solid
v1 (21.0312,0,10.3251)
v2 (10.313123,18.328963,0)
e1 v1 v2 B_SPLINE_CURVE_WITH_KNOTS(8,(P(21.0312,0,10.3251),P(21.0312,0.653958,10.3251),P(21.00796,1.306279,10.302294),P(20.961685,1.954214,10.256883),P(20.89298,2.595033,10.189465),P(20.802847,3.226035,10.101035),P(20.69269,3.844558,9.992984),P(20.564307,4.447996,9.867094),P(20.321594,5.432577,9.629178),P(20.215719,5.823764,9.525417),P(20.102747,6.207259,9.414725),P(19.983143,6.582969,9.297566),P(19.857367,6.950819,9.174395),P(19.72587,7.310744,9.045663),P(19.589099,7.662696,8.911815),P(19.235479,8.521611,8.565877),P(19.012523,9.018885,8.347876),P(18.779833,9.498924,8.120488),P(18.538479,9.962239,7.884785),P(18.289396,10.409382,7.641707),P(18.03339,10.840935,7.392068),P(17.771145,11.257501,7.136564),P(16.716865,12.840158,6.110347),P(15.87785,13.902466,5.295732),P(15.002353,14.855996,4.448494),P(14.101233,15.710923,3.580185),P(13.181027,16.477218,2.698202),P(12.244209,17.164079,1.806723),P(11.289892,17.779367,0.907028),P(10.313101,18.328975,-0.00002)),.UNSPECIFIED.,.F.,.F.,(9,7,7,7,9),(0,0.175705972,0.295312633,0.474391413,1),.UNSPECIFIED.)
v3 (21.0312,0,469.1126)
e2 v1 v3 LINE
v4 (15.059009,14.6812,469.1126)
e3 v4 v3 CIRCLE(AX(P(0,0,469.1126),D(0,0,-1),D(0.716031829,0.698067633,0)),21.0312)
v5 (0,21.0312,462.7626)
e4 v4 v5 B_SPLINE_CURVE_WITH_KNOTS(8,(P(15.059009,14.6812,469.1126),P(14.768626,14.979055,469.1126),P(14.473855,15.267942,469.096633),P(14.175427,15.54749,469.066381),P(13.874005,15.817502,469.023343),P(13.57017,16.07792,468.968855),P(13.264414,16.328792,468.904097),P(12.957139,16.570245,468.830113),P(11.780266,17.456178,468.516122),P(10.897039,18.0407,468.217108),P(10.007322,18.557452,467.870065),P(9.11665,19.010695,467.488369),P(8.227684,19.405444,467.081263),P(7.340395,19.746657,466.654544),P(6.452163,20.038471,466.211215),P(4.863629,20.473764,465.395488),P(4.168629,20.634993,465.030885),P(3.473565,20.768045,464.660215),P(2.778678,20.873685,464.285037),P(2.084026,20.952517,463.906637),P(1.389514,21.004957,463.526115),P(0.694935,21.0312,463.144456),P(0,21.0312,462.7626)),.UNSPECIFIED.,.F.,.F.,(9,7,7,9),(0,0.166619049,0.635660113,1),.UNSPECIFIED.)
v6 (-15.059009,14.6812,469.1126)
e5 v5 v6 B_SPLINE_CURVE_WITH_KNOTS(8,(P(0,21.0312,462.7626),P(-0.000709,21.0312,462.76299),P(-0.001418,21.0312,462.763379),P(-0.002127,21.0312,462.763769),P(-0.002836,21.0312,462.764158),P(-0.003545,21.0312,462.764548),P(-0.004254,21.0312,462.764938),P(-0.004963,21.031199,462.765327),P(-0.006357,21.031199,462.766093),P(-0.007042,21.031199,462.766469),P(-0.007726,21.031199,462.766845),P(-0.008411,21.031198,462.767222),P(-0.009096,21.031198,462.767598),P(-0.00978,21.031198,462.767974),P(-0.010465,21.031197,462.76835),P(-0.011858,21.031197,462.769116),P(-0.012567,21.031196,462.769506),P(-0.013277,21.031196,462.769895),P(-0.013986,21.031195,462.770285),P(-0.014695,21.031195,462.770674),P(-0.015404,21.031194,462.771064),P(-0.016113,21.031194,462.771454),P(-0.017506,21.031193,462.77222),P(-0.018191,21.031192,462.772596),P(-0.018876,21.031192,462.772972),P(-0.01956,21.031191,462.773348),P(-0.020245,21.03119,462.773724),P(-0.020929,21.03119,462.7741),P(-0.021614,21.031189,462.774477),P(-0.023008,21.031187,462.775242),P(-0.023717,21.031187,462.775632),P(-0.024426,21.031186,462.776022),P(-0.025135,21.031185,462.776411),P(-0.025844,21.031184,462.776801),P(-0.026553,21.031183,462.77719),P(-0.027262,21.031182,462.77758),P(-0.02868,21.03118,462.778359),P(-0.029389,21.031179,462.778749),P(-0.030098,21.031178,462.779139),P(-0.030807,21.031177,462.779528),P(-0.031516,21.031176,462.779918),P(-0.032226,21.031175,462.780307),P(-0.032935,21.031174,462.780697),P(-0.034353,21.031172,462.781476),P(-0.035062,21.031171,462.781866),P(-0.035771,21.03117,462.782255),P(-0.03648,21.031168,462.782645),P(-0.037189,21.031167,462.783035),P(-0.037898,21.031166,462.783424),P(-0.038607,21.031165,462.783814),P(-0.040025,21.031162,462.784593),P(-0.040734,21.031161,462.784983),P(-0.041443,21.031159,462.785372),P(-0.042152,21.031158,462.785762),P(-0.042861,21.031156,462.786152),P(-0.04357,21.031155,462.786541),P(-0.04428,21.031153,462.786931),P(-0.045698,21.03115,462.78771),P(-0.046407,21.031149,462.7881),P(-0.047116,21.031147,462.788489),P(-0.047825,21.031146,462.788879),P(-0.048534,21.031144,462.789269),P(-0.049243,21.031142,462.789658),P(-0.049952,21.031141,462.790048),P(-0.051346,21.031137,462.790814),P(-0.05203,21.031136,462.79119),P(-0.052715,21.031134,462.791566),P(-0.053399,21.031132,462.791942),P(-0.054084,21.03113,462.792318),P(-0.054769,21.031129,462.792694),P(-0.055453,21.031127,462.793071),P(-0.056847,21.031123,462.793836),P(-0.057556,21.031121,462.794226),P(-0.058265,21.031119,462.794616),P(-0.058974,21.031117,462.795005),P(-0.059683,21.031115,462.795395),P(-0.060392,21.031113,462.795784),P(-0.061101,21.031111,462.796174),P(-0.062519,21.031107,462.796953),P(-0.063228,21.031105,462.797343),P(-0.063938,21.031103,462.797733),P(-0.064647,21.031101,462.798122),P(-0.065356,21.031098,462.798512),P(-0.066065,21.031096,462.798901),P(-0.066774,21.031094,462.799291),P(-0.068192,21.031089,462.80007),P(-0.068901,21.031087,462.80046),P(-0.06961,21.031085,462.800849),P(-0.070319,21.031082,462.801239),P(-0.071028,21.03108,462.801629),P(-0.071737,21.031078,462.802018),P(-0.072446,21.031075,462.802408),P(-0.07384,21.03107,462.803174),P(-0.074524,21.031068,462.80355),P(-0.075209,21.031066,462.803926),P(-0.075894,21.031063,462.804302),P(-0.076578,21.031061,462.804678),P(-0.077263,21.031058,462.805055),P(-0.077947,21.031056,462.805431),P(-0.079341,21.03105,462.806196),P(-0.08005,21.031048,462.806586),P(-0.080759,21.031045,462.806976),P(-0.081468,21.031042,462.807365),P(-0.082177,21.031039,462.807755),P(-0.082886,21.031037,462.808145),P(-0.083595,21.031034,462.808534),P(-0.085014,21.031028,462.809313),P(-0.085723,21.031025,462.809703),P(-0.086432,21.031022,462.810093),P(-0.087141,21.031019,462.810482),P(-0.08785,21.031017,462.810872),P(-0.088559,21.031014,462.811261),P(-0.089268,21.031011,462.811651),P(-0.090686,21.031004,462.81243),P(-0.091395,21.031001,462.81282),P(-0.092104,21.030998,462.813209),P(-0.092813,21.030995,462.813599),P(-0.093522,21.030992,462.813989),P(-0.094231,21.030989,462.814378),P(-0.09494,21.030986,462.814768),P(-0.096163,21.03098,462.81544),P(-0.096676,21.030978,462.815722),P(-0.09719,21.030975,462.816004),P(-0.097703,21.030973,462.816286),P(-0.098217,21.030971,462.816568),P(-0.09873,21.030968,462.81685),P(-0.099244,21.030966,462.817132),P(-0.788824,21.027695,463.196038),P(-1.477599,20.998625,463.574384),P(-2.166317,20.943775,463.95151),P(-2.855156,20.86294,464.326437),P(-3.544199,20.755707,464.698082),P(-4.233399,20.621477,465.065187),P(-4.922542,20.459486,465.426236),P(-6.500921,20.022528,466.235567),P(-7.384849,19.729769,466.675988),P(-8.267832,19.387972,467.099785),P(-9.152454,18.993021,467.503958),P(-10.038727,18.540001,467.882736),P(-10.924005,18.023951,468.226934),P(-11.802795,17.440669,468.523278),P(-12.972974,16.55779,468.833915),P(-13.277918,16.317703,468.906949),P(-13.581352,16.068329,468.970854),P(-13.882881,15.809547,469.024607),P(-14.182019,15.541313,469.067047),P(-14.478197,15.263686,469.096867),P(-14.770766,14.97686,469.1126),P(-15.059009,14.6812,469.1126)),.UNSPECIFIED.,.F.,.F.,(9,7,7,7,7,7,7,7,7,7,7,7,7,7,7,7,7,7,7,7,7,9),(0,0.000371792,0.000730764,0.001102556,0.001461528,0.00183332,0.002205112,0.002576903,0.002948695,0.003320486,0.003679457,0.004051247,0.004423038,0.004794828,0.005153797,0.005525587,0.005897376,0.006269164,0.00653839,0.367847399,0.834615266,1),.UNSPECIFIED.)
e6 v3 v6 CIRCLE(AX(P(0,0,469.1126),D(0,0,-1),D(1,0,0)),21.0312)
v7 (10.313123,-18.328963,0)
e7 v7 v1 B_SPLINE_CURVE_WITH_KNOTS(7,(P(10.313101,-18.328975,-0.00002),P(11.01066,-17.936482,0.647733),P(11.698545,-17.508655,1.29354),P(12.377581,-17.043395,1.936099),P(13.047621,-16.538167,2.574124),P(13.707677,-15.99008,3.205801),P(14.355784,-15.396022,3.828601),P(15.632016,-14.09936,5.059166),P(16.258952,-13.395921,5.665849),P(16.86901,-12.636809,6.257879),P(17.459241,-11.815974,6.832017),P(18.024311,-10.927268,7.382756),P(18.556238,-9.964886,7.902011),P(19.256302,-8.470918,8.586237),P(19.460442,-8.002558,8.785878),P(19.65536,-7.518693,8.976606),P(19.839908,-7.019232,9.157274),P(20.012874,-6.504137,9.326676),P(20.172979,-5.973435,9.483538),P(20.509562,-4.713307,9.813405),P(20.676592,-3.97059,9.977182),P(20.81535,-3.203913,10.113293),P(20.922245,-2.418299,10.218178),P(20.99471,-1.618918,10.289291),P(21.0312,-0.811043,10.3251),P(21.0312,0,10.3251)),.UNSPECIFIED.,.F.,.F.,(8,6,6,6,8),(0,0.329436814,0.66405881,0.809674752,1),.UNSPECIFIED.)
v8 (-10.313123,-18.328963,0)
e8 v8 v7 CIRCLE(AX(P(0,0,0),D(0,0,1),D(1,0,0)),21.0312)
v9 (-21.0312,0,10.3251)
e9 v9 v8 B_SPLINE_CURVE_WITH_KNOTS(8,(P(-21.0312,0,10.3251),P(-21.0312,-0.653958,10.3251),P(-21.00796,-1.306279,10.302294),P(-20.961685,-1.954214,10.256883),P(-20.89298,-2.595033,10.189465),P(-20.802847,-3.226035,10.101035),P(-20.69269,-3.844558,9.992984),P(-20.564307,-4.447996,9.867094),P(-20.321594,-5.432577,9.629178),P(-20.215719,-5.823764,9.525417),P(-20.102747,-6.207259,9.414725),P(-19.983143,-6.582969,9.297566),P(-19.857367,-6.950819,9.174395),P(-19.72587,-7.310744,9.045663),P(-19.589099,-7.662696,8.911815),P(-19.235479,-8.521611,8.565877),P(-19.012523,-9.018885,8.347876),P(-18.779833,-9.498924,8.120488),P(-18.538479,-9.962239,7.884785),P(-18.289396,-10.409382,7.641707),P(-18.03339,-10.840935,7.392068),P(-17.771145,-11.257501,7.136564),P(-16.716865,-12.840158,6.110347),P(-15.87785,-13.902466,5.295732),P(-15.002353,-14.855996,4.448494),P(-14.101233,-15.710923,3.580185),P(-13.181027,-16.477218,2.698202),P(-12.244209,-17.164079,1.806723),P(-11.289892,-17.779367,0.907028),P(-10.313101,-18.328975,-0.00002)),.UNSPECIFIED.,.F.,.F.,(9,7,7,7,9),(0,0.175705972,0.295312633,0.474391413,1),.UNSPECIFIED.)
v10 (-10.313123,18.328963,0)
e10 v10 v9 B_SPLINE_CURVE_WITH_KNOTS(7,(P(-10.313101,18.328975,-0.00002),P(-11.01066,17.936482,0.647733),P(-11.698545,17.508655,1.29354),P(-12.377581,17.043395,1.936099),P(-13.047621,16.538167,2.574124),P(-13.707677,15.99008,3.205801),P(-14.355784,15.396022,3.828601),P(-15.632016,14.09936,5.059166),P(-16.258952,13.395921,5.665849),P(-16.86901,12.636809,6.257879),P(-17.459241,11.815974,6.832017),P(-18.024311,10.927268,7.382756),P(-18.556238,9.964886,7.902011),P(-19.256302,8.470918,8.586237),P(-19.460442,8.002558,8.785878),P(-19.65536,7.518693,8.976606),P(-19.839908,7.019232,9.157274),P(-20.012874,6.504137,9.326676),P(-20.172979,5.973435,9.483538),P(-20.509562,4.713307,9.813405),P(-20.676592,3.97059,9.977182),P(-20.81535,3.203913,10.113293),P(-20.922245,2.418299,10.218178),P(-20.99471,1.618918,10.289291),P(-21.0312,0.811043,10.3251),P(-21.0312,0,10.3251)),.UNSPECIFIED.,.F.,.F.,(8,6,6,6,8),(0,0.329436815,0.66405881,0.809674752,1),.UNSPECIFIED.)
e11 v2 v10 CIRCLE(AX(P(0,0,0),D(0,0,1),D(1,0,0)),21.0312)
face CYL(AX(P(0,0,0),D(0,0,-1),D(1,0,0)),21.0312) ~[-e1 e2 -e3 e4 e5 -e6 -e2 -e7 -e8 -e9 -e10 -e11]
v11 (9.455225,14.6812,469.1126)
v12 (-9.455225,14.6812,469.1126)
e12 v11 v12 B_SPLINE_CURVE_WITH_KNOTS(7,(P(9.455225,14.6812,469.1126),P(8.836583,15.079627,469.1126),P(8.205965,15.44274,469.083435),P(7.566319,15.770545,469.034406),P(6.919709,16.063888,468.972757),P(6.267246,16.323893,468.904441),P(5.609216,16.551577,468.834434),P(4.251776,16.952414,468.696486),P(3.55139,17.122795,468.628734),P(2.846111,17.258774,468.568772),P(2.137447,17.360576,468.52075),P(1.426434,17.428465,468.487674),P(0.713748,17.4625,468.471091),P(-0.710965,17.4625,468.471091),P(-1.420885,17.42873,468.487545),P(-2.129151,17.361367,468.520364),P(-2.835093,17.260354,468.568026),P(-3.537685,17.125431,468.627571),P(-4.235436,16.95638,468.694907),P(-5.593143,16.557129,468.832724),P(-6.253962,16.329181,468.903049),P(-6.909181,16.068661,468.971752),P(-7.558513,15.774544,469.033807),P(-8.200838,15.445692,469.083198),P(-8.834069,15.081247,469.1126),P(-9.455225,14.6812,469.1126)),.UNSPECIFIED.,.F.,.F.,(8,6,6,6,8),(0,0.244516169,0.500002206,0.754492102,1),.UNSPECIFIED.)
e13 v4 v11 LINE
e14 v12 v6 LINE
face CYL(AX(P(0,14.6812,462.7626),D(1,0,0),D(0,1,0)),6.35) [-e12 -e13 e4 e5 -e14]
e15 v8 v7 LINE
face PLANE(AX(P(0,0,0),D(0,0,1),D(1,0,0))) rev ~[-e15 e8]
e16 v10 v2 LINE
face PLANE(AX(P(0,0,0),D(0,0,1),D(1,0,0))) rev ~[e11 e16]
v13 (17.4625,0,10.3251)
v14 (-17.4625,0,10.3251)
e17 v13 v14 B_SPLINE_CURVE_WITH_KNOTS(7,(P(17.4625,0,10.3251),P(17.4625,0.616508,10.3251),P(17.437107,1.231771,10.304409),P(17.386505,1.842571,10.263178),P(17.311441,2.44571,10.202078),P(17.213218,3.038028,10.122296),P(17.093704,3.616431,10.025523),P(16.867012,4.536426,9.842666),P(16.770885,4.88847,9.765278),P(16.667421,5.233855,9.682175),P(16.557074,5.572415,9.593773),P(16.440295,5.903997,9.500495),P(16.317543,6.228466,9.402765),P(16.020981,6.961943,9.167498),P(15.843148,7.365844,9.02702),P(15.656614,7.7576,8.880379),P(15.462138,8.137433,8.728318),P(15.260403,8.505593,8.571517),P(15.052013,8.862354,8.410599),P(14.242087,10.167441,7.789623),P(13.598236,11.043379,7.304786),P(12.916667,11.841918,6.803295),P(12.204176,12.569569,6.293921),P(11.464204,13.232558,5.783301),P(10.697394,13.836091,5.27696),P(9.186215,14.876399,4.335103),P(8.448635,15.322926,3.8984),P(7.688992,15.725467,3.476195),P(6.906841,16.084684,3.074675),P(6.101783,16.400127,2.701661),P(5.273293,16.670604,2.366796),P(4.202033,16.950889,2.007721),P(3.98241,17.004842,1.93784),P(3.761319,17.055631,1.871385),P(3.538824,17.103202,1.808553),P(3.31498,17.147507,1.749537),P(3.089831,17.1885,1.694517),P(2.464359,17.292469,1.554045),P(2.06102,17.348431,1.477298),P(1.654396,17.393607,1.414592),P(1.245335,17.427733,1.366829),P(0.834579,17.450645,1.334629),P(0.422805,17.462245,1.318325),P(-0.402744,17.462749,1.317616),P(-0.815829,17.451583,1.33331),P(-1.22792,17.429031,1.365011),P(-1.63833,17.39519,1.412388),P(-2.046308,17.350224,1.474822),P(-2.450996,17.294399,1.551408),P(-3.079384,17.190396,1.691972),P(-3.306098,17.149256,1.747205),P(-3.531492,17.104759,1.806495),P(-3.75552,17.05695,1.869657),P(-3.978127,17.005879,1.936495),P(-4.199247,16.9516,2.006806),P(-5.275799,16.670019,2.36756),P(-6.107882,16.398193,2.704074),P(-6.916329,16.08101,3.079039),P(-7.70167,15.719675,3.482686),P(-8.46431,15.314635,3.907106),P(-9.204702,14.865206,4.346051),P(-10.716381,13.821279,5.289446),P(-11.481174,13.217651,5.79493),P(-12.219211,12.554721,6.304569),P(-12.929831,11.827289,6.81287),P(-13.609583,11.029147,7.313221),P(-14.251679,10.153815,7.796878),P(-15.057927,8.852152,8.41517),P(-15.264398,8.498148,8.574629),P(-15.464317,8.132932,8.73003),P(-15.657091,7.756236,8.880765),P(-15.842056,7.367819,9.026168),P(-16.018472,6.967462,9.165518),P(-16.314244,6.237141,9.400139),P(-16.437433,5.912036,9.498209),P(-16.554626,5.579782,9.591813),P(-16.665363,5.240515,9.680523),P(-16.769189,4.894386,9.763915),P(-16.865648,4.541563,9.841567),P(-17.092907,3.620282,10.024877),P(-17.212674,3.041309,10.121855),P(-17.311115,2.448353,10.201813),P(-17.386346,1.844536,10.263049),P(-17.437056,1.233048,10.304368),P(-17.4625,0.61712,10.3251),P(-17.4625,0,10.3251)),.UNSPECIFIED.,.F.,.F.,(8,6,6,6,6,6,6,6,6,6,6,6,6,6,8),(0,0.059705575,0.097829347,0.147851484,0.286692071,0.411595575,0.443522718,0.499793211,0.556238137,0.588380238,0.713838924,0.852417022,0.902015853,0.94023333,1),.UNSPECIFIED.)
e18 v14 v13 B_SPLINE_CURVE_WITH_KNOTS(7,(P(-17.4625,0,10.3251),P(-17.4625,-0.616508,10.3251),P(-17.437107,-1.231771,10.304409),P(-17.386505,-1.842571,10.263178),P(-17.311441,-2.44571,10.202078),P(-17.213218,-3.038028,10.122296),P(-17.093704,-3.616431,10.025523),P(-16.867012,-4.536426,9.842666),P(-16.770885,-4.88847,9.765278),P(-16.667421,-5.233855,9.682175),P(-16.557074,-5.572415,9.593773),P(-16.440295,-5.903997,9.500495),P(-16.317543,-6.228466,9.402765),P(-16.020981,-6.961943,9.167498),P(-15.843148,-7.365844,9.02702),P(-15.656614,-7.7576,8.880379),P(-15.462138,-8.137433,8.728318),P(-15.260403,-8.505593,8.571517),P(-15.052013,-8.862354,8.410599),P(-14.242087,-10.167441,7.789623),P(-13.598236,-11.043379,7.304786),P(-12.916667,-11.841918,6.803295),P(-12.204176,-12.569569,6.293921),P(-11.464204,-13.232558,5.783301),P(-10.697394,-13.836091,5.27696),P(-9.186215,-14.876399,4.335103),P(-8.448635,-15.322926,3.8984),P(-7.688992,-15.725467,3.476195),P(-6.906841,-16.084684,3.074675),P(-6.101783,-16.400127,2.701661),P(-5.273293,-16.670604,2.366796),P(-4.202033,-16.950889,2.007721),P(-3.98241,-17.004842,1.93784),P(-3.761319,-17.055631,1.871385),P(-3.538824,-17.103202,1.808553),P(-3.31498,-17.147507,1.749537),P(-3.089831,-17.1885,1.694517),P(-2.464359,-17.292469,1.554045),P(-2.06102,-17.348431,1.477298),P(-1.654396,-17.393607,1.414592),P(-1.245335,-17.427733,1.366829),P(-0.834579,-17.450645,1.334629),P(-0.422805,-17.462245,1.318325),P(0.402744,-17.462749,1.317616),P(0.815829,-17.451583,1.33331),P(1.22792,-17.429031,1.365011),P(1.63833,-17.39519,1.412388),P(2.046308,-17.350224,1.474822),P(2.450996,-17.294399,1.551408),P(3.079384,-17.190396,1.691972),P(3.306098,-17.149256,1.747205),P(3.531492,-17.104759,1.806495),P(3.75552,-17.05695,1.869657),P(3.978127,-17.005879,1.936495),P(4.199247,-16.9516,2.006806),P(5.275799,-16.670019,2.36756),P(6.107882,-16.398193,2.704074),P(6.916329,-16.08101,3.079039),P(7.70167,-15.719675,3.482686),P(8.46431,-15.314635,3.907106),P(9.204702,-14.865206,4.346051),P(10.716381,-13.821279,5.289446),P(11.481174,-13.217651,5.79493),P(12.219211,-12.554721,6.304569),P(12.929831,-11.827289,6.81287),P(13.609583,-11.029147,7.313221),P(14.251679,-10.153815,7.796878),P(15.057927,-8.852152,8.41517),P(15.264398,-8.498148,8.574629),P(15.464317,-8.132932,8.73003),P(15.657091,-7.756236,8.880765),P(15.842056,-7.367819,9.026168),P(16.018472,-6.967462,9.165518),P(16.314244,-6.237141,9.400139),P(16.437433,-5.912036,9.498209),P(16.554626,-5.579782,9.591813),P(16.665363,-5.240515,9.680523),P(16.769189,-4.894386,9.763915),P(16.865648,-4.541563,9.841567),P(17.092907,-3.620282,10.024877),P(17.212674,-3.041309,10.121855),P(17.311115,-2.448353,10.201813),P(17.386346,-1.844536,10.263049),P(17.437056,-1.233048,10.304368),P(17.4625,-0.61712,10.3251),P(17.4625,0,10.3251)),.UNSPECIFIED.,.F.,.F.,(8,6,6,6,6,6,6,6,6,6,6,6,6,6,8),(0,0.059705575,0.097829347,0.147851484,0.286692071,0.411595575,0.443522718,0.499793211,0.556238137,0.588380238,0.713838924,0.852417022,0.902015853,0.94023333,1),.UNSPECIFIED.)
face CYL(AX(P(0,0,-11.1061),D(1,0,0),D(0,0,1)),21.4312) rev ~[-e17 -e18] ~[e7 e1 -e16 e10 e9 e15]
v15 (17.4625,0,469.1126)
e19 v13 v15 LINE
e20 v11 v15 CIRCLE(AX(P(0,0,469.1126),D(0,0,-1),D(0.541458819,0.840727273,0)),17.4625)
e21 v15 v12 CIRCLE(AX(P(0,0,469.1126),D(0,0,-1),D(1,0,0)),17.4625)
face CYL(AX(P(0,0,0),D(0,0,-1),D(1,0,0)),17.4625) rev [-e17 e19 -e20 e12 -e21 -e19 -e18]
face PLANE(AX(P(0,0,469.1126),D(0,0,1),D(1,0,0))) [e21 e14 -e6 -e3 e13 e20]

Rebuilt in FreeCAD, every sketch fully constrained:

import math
import FreeCAD as App
import Part
import Sketcher

V = App.Vector
Q = App.Units.Quantity

doc = App.newDocument("Part")
body = doc.addObject("PartDesign::Body", "Body")

# Sketch on XY plane
sketch1 = body.newObject("Sketcher::SketchObject", "Sketch")
sketch1.AttachmentSupport = (doc.getObject("XY_Plane"), [""])
sketch1.MapMode = "FlatFace"
sketch1.addGeometry([
    Part.Circle(V(0, 0, 0), V(0, 0, 1), 21),
    Part.Circle(V(0, 0, 0), V(0, 0, 1), 17),
], False)
sketch1.addConstraint([
    Sketcher.Constraint("Coincident", 0, 3, -1, 1),
    Sketcher.Constraint("Coincident", 1, 3, -1, 1),
    Sketcher.Constraint("Diameter", 0, Q("1.656 in")),
    Sketcher.Constraint("Diameter", 1, Q("1.375 in")),
])
pad1 = body.newObject("PartDesign::Pad", "Pad")
pad1.Profile = sketch1
pad1.Length = Q("18.469 in")

# Sketch on YZ plane
sketch2 = body.newObject("Sketcher::SketchObject", "Sketch001")
sketch2.AttachmentSupport = (doc.getObject("YZ_Plane"), [""])
sketch2.MapMode = "FlatFace"
sketch2.addGeometry(Part.Circle(V(0, -11, 0), V(0, 0, 1), 21), False)
sketch2.addConstraint([
    Sketcher.Constraint("PointOnObject", 0, 3, -2),
    Sketcher.Constraint("Diameter", 0, Q("1.6875 in")),
    Sketcher.Constraint("DistanceY", 0, 3, -1, 1, 11.106),
])
pocket1 = body.newObject("PartDesign::Pocket", "Pocket")
pocket1.Profile = sketch2
pocket1.Length = Q("11.875 in")
pocket1.Midplane = True

# Sketch on YZ plane
sketch3 = body.newObject("Sketcher::SketchObject", "Sketch002")
sketch3.AttachmentSupport = (doc.getObject("YZ_Plane"), [""])
sketch3.MapMode = "FlatFace"
sketch3.addGeometry([
    Part.LineSegment(V(21, 463, 0), V(21, 443, 0)),  # 0
    Part.LineSegment(V(21, 443, 0), V(31, 443, 0)),  # 1
    Part.LineSegment(V(31, 443, 0), V(31, 508, 0)),  # 2
    Part.LineSegment(V(31, 508, 0), V(2, 508, 0)),  # 3
    Part.LineSegment(V(2, 508, 0), V(2, 469, 0)),  # 4
    Part.LineSegment(V(2, 469, 0), V(15, 469, 0)),  # 5
    Part.ArcOfCircle(Part.Circle(V(15, 463, 0), V(0, 0, 1), 6), math.radians(0), math.radians(90)),  # 6
], False)
sketch3.addConstraint([
    Sketcher.Constraint("Coincident", 0, 2, 1, 1),
    Sketcher.Constraint("Coincident", 1, 2, 2, 1),
    Sketcher.Constraint("Coincident", 2, 2, 3, 1),
    Sketcher.Constraint("Coincident", 3, 2, 4, 1),
    Sketcher.Constraint("Coincident", 4, 2, 5, 1),
    Sketcher.Constraint("Tangent", 5, 2, 6, 2),
    Sketcher.Constraint("Tangent", 6, 1, 0, 1),
    Sketcher.Constraint("Vertical", 0),
    Sketcher.Constraint("Horizontal", 1),
    Sketcher.Constraint("Vertical", 2),
    Sketcher.Constraint("Horizontal", 3),
    Sketcher.Constraint("Vertical", 4),
    Sketcher.Constraint("Horizontal", 5),
    Sketcher.Constraint("Radius", 6, Q("0.25 in")),
    Sketcher.Constraint("DistanceX", 5, 1, 5, 2, Q("0.5 in")),
    Sketcher.Constraint("DistanceY", -1, 1, 2, 2, Q("20 in")),
    Sketcher.Constraint("DistanceX", 1, 1, 1, 2, Q("0.375 in")),
    Sketcher.Constraint("DistanceY", 4, 2, 4, 1, Q("1.531 in")),
    Sketcher.Constraint("DistanceX", -1, 1, 6, 3, Q("0.578 in")),
    Sketcher.Constraint("DistanceY", 0, 2, 0, 1, 19.308),
])
pocket2 = body.newObject("PartDesign::Pocket", "Pocket001")
pocket2.Profile = sketch3
pocket2.Length = Q("11.875 in")
pocket2.Midplane = True

doc.recompute()
